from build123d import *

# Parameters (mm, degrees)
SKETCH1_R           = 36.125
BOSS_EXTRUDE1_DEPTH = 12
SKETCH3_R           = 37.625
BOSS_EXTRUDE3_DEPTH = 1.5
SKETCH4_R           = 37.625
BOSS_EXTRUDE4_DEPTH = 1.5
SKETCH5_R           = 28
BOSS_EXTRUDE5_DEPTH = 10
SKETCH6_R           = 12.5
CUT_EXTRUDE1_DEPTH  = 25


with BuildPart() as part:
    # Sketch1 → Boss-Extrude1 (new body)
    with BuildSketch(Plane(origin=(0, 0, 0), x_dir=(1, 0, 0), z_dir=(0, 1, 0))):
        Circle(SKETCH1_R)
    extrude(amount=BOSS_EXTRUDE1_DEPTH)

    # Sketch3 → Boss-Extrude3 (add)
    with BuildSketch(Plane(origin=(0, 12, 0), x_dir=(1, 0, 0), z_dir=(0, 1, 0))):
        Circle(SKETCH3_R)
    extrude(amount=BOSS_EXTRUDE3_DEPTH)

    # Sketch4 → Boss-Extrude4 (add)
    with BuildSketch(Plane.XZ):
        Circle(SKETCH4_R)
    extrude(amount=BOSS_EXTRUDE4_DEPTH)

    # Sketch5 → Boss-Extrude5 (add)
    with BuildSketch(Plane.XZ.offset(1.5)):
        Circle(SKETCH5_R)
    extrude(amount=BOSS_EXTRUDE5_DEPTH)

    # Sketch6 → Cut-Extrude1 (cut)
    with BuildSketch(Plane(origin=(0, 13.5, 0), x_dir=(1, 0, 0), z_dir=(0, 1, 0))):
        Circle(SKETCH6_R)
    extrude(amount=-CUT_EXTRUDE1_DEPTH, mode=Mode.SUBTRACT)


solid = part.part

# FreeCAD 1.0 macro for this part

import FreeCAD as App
import Part
import Sketcher
Q = App.Units.Quantity

doc = App.newDocument("Part")
body = doc.addObject("PartDesign::Body", "Body")

# Sketch on XZ plane
sketch1 = body.newObject("Sketcher::SketchObject", "Sketch")
sketch1.AttachmentSupport = (doc.getObject("XZ_Plane"), [""])
sketch1.MapMode = "FlatFace"
sketch1.addGeometry(Part.Circle(App.Vector(0, 0, 0), App.Vector(0, 0, 1), 36), False)
sketch1.addConstraint(Sketcher.Constraint("Coincident", 0, 3, -1, 1))
sketch1.addConstraint(Sketcher.Constraint("Diameter", 0, Q("72.25 mm")))
pad1 = body.newObject("PartDesign::Pad", "Pad")
pad1.Profile = sketch1
pad1.Length = 12
pad1.Reversed = True

# Sketch on XZ plane
sketch2 = body.newObject("Sketcher::SketchObject", "Sketch001")
sketch2.AttachmentSupport = (doc.getObject("XZ_Plane"), [""])
sketch2.MapMode = "FlatFace"
sketch2.AttachmentOffset = App.Placement(App.Vector(0, 0, -12), App.Rotation())
sketch2.addGeometry(Part.Circle(App.Vector(0, 0, 0), App.Vector(0, 0, 1), 38), False)
sketch2.addConstraint(Sketcher.Constraint("Coincident", 0, 3, -1, 1))
sketch2.addConstraint(Sketcher.Constraint("Diameter", 0, Q("75.25 mm")))
pad2 = body.newObject("PartDesign::Pad", "Pad001")
pad2.Profile = sketch2
pad2.Length = 1.5
pad2.Reversed = True

# Sketch on XZ plane
sketch3 = body.newObject("Sketcher::SketchObject", "Sketch002")
sketch3.AttachmentSupport = (doc.getObject("XZ_Plane"), [""])
sketch3.MapMode = "FlatFace"
sketch3.addGeometry(Part.Circle(App.Vector(0, 0, 0), App.Vector(0, 0, 1), 38), False)
sketch3.addConstraint(Sketcher.Constraint("Coincident", 0, 3, -1, 1))
sketch3.addConstraint(Sketcher.Constraint("Diameter", 0, Q("75.25 mm")))
pad3 = body.newObject("PartDesign::Pad", "Pad002")
pad3.Profile = sketch3
pad3.Length = 1.5

# Sketch on XZ plane
sketch4 = body.newObject("Sketcher::SketchObject", "Sketch003")
sketch4.AttachmentSupport = (doc.getObject("XZ_Plane"), [""])
sketch4.MapMode = "FlatFace"
sketch4.AttachmentOffset = App.Placement(App.Vector(0, 0, 1.5), App.Rotation())
sketch4.addGeometry(Part.Circle(App.Vector(0, 0, 0), App.Vector(0, 0, 1), 28), False)
sketch4.addConstraint(Sketcher.Constraint("Coincident", 0, 3, -1, 1))
sketch4.addConstraint(Sketcher.Constraint("Diameter", 0, Q("56 mm")))
pad4 = body.newObject("PartDesign::Pad", "Pad003")
pad4.Profile = sketch4
pad4.Length = 10

# Sketch on XZ plane
sketch5 = body.newObject("Sketcher::SketchObject", "Sketch004")
sketch5.AttachmentSupport = (doc.getObject("XZ_Plane"), [""])
sketch5.MapMode = "FlatFace"
sketch5.AttachmentOffset = App.Placement(App.Vector(0, 0, -13.5), App.Rotation())
sketch5.addGeometry(Part.Circle(App.Vector(0, 0, 0), App.Vector(0, 0, 1), 12), False)
sketch5.addConstraint(Sketcher.Constraint("Coincident", 0, 3, -1, 1))
sketch5.addConstraint(Sketcher.Constraint("Diameter", 0, Q("25 mm")))
pocket1 = body.newObject("PartDesign::Pocket", "Pocket")
pocket1.Profile = sketch5
pocket1.Length = 25
pocket1.Reversed = True

doc.recompute()
